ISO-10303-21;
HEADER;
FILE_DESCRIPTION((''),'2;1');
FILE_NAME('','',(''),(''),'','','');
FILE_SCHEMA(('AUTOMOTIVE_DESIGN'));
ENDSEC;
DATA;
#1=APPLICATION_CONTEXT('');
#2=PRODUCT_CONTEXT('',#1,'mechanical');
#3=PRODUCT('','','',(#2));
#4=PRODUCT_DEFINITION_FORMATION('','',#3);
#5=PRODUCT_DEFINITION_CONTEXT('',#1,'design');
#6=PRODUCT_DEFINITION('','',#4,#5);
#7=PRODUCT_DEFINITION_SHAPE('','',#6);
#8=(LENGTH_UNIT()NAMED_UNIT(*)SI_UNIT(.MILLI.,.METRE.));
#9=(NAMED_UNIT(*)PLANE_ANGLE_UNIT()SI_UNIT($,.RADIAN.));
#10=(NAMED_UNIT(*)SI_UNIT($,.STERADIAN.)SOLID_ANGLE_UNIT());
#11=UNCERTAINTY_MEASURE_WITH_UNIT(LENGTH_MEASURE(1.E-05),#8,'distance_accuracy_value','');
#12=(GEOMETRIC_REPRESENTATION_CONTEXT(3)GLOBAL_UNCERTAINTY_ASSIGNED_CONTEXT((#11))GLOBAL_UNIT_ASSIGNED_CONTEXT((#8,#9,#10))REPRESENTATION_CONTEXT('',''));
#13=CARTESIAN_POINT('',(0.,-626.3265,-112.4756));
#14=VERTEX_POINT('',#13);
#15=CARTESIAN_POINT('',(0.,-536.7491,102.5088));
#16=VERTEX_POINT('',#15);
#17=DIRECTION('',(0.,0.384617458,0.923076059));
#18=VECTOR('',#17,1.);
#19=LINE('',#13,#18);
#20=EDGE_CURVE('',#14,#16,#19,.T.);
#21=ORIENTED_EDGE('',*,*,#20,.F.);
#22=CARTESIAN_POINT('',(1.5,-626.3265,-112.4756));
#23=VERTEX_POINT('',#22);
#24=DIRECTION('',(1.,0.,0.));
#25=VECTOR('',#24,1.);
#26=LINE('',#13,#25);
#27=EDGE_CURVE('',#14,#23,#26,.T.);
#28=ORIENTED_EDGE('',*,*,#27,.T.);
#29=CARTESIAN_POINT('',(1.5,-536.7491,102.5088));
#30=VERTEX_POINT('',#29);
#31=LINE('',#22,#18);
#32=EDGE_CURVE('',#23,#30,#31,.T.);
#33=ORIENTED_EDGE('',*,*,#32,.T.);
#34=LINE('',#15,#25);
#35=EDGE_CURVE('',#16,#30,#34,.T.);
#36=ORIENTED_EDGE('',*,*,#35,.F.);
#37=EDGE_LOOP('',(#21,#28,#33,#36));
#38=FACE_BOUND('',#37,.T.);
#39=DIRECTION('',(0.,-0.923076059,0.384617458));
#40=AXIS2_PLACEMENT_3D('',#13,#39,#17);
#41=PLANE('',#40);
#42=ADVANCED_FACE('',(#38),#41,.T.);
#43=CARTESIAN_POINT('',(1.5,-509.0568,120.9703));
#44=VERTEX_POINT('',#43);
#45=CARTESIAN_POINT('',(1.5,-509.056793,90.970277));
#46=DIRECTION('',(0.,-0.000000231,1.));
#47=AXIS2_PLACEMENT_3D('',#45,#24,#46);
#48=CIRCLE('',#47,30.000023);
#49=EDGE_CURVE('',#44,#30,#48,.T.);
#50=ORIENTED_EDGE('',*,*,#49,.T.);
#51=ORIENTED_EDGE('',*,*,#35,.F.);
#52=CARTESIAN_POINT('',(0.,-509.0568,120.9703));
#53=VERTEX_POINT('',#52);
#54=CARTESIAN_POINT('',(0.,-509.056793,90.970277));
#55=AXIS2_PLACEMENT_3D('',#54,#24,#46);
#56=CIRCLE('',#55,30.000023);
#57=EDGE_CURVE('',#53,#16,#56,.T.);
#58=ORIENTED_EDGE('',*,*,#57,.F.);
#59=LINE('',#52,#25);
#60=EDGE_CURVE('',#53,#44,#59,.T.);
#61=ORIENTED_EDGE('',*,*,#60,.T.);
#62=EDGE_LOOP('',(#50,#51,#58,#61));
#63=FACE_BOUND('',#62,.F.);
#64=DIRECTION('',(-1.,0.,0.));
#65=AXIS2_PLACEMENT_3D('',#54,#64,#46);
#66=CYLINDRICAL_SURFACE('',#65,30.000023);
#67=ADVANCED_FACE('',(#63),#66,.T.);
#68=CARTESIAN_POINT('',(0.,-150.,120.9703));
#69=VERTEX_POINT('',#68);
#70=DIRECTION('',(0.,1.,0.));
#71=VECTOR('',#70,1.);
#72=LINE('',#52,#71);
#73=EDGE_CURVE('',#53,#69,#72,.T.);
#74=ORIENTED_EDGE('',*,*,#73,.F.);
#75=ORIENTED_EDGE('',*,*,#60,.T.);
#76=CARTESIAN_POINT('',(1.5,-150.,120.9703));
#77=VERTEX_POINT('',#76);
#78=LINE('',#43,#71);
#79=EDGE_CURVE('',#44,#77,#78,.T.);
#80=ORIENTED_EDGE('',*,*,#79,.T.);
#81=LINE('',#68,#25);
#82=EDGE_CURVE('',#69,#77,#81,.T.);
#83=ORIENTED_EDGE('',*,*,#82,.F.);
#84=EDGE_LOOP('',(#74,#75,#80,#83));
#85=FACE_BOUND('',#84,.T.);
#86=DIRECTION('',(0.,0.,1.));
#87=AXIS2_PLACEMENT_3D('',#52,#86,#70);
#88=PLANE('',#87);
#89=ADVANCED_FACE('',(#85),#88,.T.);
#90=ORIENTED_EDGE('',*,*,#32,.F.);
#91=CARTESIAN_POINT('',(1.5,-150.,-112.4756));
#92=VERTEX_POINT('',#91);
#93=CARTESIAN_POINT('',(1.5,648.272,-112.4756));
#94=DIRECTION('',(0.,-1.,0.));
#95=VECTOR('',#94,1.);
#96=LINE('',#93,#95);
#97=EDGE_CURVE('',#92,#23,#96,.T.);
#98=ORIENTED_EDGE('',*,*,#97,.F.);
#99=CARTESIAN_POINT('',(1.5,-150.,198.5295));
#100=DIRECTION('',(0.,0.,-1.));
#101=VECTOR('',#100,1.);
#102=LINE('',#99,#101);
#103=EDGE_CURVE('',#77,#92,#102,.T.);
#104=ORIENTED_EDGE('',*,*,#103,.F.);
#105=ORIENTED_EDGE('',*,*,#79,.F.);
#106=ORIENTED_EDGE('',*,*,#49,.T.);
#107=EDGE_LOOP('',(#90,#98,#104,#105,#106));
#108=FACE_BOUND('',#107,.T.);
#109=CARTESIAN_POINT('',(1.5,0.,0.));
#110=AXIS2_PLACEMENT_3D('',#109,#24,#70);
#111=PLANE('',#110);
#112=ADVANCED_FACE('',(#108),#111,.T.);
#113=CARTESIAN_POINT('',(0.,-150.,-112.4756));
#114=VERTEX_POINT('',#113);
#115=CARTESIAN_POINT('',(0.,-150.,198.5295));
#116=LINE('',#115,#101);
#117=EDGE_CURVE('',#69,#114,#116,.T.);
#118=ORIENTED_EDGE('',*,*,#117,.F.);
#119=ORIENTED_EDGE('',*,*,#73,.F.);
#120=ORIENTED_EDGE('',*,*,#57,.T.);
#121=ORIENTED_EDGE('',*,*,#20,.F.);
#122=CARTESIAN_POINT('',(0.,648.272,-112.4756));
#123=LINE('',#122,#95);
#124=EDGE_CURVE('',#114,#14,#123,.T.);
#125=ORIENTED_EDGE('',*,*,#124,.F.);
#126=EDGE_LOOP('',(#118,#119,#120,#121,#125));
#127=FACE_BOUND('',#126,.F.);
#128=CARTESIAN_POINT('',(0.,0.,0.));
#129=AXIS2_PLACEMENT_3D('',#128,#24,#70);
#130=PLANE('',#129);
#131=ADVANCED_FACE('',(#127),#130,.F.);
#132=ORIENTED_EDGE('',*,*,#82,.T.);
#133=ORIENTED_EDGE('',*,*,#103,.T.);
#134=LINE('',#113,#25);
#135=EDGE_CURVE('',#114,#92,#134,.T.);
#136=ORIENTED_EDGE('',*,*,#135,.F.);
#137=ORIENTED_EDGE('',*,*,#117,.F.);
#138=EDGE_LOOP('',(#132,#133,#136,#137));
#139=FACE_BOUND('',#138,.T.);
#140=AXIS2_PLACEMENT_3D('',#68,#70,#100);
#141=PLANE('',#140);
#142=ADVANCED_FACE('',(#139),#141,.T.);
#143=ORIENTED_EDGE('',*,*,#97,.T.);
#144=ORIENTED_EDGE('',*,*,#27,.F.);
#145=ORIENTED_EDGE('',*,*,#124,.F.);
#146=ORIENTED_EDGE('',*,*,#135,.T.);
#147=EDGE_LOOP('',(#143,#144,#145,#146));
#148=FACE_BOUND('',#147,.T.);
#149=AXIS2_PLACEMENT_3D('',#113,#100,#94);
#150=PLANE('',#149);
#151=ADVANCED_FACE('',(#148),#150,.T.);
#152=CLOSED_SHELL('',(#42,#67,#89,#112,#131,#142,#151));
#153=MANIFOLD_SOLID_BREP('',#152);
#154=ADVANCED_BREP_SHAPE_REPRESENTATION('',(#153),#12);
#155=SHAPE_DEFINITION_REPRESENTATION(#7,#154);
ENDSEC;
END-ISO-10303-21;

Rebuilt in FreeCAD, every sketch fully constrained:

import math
import FreeCAD as App
import Part
import Sketcher
Q = App.Units.Quantity

doc = App.newDocument("Part")
body = doc.addObject("PartDesign::Body", "Body")

sketch1 = body.newObject("Sketcher::SketchObject", "Sketch")
sketch1.AttachmentSupport = (doc.getObject("YZ_Plane"), [""])
sketch1.MapMode = "FlatFace"
sketch1.addGeometry([
    Part.LineSegment(App.Vector(-626.3265, -112.4756, 0), App.Vector(-150, -112.4756, 0)),
    Part.LineSegment(App.Vector(-150, -112.4756, 0), App.Vector(-150, 120.9703, 0)),
    Part.LineSegment(App.Vector(-150, 120.9703, 0), App.Vector(-509.0568, 120.9703, 0)),
    Part.ArcOfCircle(Part.Circle(App.Vector(-509.0568, 90.9703, 0), App.Vector(0, 0, 1), 30), math.radians(90), math.radians(157.380062)),
    Part.LineSegment(App.Vector(-536.7491, 102.5088, 0), App.Vector(-626.3265, -112.4756, 0)),
], False)
sketch1.addConstraint([
    Sketcher.Constraint("Coincident", 0, 2, 1, 1),
    Sketcher.Constraint("Coincident", 1, 2, 2, 1),
    Sketcher.Constraint("Tangent", 2, 2, 3, 1),
    Sketcher.Constraint("Tangent", 3, 2, 4, 1),
    Sketcher.Constraint("Coincident", 4, 2, 0, 1),
    Sketcher.Constraint("Horizontal", 0),
    Sketcher.Constraint("Vertical", 1),
    Sketcher.Constraint("Horizontal", 2),
    Sketcher.Constraint("DistanceX", 0, 2, -1, 1, Q("150 mm")),
    Sketcher.Constraint("Radius", 3, Q("30 mm")),
    Sketcher.Constraint("Distance", 4, Q("232.9 mm")),
    Sketcher.Constraint("Angle", 4, Q("-112.62 deg")),
    Sketcher.Constraint("DistanceX", 0, 1, 0, 2, Q("476.3265 mm")),
    Sketcher.Constraint("DistanceY", -1, 1, 3, 3, Q("90.9703 mm")),
])
pad1 = body.newObject("PartDesign::Pad", "Pad")
pad1.Profile = sketch1
pad1.Length = 1.5

doc.recompute()
